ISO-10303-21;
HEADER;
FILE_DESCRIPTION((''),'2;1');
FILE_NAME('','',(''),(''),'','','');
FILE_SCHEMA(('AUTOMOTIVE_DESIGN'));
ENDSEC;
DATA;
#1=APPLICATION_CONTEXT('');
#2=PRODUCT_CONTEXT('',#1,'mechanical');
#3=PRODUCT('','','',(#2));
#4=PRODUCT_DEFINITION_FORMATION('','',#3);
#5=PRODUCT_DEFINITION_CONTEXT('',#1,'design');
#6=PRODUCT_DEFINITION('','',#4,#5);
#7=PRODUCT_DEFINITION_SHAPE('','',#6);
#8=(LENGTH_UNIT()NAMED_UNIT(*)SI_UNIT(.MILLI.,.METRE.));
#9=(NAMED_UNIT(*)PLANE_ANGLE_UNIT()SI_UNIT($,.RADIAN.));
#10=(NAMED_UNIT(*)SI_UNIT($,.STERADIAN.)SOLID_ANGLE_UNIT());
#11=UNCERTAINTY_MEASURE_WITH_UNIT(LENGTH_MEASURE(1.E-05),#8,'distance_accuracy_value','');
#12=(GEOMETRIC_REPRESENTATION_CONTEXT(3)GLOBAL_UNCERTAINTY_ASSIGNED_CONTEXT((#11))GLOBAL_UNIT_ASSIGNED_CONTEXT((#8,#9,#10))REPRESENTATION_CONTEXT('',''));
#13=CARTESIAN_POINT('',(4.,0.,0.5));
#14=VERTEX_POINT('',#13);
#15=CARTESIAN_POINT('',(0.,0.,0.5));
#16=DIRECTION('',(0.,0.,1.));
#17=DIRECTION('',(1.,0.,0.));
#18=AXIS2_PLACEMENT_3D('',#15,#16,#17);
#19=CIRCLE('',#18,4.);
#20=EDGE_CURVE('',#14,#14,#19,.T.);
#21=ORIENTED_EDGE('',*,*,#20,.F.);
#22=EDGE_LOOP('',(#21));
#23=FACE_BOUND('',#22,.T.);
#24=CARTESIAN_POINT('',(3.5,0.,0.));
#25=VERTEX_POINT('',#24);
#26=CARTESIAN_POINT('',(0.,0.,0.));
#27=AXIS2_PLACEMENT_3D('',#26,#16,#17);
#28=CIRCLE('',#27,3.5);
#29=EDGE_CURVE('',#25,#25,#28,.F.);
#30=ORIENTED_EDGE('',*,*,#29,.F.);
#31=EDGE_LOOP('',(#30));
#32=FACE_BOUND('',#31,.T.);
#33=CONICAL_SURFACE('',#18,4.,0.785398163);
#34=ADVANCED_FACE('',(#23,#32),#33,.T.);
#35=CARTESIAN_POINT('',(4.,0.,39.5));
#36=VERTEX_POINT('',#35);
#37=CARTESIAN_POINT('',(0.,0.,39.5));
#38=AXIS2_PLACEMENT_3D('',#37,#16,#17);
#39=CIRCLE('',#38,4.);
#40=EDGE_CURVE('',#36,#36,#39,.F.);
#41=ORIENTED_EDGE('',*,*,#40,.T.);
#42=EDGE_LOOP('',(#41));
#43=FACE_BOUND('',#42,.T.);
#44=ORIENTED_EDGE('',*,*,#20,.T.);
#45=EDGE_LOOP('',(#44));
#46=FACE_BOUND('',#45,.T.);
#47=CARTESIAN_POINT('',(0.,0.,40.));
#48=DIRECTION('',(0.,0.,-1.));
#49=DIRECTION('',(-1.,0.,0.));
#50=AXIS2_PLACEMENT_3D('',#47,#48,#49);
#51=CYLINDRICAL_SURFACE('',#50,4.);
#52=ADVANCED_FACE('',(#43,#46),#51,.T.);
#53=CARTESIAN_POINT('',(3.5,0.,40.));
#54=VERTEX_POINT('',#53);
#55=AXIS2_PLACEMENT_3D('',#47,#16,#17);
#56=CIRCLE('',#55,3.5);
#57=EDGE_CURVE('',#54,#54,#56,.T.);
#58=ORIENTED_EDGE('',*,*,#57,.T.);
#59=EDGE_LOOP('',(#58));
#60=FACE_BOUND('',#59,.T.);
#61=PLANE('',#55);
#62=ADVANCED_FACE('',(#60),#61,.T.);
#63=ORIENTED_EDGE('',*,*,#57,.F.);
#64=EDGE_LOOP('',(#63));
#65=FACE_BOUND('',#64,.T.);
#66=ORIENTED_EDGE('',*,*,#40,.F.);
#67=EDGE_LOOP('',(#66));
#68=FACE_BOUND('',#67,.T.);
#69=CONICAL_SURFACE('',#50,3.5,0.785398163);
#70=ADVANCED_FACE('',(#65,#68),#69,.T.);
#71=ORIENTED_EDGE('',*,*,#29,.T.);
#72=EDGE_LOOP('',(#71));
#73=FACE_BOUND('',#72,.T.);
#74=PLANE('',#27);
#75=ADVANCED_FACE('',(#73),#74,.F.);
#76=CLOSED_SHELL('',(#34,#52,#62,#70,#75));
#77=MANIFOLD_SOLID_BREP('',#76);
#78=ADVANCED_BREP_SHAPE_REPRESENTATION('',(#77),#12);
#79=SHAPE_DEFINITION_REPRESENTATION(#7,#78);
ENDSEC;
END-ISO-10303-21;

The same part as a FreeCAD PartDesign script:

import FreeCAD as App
import Part
import Sketcher
from FreeCAD import Vector


def edges_at(feature, points):
    """Names of the edges that pass closest to the given points."""
    edges = feature.Shape.Edges
    near = lambda p: min(range(len(edges)), key=lambda i: edges[i].distToShape(Part.Vertex(*p))[0])
    return sorted({f"Edge{near(p) + 1}" for p in points})

doc = App.newDocument("Part")
body = doc.addObject("PartDesign::Body", "Body")

sketch1 = body.newObject("Sketcher::SketchObject", "Sketch")
sketch1.AttachmentSupport = (doc.getObject("XY_Plane"), [""])
sketch1.MapMode = "FlatFace"
sketch1.addGeometry(Part.Circle(Vector(0, 0, 0), Vector(0, 0, 1), 4), False)
sketch1.addConstraint([
    Sketcher.Constraint("Coincident", 0, 3, -1, 1),
    Sketcher.Constraint("Diameter", 0, 8.0),
])
pad1 = body.newObject("PartDesign::Pad", "Pad")
pad1.Profile = sketch1
pad1.Length = 40
doc.recompute()

chamfer = body.newObject("PartDesign::Chamfer", "Chamfer")
chamfer.Base = (pad1, edges_at(pad1, [(-4, 0, 0), (-4, 0, 40)]))
chamfer.Size = 0.5

doc.recompute()
